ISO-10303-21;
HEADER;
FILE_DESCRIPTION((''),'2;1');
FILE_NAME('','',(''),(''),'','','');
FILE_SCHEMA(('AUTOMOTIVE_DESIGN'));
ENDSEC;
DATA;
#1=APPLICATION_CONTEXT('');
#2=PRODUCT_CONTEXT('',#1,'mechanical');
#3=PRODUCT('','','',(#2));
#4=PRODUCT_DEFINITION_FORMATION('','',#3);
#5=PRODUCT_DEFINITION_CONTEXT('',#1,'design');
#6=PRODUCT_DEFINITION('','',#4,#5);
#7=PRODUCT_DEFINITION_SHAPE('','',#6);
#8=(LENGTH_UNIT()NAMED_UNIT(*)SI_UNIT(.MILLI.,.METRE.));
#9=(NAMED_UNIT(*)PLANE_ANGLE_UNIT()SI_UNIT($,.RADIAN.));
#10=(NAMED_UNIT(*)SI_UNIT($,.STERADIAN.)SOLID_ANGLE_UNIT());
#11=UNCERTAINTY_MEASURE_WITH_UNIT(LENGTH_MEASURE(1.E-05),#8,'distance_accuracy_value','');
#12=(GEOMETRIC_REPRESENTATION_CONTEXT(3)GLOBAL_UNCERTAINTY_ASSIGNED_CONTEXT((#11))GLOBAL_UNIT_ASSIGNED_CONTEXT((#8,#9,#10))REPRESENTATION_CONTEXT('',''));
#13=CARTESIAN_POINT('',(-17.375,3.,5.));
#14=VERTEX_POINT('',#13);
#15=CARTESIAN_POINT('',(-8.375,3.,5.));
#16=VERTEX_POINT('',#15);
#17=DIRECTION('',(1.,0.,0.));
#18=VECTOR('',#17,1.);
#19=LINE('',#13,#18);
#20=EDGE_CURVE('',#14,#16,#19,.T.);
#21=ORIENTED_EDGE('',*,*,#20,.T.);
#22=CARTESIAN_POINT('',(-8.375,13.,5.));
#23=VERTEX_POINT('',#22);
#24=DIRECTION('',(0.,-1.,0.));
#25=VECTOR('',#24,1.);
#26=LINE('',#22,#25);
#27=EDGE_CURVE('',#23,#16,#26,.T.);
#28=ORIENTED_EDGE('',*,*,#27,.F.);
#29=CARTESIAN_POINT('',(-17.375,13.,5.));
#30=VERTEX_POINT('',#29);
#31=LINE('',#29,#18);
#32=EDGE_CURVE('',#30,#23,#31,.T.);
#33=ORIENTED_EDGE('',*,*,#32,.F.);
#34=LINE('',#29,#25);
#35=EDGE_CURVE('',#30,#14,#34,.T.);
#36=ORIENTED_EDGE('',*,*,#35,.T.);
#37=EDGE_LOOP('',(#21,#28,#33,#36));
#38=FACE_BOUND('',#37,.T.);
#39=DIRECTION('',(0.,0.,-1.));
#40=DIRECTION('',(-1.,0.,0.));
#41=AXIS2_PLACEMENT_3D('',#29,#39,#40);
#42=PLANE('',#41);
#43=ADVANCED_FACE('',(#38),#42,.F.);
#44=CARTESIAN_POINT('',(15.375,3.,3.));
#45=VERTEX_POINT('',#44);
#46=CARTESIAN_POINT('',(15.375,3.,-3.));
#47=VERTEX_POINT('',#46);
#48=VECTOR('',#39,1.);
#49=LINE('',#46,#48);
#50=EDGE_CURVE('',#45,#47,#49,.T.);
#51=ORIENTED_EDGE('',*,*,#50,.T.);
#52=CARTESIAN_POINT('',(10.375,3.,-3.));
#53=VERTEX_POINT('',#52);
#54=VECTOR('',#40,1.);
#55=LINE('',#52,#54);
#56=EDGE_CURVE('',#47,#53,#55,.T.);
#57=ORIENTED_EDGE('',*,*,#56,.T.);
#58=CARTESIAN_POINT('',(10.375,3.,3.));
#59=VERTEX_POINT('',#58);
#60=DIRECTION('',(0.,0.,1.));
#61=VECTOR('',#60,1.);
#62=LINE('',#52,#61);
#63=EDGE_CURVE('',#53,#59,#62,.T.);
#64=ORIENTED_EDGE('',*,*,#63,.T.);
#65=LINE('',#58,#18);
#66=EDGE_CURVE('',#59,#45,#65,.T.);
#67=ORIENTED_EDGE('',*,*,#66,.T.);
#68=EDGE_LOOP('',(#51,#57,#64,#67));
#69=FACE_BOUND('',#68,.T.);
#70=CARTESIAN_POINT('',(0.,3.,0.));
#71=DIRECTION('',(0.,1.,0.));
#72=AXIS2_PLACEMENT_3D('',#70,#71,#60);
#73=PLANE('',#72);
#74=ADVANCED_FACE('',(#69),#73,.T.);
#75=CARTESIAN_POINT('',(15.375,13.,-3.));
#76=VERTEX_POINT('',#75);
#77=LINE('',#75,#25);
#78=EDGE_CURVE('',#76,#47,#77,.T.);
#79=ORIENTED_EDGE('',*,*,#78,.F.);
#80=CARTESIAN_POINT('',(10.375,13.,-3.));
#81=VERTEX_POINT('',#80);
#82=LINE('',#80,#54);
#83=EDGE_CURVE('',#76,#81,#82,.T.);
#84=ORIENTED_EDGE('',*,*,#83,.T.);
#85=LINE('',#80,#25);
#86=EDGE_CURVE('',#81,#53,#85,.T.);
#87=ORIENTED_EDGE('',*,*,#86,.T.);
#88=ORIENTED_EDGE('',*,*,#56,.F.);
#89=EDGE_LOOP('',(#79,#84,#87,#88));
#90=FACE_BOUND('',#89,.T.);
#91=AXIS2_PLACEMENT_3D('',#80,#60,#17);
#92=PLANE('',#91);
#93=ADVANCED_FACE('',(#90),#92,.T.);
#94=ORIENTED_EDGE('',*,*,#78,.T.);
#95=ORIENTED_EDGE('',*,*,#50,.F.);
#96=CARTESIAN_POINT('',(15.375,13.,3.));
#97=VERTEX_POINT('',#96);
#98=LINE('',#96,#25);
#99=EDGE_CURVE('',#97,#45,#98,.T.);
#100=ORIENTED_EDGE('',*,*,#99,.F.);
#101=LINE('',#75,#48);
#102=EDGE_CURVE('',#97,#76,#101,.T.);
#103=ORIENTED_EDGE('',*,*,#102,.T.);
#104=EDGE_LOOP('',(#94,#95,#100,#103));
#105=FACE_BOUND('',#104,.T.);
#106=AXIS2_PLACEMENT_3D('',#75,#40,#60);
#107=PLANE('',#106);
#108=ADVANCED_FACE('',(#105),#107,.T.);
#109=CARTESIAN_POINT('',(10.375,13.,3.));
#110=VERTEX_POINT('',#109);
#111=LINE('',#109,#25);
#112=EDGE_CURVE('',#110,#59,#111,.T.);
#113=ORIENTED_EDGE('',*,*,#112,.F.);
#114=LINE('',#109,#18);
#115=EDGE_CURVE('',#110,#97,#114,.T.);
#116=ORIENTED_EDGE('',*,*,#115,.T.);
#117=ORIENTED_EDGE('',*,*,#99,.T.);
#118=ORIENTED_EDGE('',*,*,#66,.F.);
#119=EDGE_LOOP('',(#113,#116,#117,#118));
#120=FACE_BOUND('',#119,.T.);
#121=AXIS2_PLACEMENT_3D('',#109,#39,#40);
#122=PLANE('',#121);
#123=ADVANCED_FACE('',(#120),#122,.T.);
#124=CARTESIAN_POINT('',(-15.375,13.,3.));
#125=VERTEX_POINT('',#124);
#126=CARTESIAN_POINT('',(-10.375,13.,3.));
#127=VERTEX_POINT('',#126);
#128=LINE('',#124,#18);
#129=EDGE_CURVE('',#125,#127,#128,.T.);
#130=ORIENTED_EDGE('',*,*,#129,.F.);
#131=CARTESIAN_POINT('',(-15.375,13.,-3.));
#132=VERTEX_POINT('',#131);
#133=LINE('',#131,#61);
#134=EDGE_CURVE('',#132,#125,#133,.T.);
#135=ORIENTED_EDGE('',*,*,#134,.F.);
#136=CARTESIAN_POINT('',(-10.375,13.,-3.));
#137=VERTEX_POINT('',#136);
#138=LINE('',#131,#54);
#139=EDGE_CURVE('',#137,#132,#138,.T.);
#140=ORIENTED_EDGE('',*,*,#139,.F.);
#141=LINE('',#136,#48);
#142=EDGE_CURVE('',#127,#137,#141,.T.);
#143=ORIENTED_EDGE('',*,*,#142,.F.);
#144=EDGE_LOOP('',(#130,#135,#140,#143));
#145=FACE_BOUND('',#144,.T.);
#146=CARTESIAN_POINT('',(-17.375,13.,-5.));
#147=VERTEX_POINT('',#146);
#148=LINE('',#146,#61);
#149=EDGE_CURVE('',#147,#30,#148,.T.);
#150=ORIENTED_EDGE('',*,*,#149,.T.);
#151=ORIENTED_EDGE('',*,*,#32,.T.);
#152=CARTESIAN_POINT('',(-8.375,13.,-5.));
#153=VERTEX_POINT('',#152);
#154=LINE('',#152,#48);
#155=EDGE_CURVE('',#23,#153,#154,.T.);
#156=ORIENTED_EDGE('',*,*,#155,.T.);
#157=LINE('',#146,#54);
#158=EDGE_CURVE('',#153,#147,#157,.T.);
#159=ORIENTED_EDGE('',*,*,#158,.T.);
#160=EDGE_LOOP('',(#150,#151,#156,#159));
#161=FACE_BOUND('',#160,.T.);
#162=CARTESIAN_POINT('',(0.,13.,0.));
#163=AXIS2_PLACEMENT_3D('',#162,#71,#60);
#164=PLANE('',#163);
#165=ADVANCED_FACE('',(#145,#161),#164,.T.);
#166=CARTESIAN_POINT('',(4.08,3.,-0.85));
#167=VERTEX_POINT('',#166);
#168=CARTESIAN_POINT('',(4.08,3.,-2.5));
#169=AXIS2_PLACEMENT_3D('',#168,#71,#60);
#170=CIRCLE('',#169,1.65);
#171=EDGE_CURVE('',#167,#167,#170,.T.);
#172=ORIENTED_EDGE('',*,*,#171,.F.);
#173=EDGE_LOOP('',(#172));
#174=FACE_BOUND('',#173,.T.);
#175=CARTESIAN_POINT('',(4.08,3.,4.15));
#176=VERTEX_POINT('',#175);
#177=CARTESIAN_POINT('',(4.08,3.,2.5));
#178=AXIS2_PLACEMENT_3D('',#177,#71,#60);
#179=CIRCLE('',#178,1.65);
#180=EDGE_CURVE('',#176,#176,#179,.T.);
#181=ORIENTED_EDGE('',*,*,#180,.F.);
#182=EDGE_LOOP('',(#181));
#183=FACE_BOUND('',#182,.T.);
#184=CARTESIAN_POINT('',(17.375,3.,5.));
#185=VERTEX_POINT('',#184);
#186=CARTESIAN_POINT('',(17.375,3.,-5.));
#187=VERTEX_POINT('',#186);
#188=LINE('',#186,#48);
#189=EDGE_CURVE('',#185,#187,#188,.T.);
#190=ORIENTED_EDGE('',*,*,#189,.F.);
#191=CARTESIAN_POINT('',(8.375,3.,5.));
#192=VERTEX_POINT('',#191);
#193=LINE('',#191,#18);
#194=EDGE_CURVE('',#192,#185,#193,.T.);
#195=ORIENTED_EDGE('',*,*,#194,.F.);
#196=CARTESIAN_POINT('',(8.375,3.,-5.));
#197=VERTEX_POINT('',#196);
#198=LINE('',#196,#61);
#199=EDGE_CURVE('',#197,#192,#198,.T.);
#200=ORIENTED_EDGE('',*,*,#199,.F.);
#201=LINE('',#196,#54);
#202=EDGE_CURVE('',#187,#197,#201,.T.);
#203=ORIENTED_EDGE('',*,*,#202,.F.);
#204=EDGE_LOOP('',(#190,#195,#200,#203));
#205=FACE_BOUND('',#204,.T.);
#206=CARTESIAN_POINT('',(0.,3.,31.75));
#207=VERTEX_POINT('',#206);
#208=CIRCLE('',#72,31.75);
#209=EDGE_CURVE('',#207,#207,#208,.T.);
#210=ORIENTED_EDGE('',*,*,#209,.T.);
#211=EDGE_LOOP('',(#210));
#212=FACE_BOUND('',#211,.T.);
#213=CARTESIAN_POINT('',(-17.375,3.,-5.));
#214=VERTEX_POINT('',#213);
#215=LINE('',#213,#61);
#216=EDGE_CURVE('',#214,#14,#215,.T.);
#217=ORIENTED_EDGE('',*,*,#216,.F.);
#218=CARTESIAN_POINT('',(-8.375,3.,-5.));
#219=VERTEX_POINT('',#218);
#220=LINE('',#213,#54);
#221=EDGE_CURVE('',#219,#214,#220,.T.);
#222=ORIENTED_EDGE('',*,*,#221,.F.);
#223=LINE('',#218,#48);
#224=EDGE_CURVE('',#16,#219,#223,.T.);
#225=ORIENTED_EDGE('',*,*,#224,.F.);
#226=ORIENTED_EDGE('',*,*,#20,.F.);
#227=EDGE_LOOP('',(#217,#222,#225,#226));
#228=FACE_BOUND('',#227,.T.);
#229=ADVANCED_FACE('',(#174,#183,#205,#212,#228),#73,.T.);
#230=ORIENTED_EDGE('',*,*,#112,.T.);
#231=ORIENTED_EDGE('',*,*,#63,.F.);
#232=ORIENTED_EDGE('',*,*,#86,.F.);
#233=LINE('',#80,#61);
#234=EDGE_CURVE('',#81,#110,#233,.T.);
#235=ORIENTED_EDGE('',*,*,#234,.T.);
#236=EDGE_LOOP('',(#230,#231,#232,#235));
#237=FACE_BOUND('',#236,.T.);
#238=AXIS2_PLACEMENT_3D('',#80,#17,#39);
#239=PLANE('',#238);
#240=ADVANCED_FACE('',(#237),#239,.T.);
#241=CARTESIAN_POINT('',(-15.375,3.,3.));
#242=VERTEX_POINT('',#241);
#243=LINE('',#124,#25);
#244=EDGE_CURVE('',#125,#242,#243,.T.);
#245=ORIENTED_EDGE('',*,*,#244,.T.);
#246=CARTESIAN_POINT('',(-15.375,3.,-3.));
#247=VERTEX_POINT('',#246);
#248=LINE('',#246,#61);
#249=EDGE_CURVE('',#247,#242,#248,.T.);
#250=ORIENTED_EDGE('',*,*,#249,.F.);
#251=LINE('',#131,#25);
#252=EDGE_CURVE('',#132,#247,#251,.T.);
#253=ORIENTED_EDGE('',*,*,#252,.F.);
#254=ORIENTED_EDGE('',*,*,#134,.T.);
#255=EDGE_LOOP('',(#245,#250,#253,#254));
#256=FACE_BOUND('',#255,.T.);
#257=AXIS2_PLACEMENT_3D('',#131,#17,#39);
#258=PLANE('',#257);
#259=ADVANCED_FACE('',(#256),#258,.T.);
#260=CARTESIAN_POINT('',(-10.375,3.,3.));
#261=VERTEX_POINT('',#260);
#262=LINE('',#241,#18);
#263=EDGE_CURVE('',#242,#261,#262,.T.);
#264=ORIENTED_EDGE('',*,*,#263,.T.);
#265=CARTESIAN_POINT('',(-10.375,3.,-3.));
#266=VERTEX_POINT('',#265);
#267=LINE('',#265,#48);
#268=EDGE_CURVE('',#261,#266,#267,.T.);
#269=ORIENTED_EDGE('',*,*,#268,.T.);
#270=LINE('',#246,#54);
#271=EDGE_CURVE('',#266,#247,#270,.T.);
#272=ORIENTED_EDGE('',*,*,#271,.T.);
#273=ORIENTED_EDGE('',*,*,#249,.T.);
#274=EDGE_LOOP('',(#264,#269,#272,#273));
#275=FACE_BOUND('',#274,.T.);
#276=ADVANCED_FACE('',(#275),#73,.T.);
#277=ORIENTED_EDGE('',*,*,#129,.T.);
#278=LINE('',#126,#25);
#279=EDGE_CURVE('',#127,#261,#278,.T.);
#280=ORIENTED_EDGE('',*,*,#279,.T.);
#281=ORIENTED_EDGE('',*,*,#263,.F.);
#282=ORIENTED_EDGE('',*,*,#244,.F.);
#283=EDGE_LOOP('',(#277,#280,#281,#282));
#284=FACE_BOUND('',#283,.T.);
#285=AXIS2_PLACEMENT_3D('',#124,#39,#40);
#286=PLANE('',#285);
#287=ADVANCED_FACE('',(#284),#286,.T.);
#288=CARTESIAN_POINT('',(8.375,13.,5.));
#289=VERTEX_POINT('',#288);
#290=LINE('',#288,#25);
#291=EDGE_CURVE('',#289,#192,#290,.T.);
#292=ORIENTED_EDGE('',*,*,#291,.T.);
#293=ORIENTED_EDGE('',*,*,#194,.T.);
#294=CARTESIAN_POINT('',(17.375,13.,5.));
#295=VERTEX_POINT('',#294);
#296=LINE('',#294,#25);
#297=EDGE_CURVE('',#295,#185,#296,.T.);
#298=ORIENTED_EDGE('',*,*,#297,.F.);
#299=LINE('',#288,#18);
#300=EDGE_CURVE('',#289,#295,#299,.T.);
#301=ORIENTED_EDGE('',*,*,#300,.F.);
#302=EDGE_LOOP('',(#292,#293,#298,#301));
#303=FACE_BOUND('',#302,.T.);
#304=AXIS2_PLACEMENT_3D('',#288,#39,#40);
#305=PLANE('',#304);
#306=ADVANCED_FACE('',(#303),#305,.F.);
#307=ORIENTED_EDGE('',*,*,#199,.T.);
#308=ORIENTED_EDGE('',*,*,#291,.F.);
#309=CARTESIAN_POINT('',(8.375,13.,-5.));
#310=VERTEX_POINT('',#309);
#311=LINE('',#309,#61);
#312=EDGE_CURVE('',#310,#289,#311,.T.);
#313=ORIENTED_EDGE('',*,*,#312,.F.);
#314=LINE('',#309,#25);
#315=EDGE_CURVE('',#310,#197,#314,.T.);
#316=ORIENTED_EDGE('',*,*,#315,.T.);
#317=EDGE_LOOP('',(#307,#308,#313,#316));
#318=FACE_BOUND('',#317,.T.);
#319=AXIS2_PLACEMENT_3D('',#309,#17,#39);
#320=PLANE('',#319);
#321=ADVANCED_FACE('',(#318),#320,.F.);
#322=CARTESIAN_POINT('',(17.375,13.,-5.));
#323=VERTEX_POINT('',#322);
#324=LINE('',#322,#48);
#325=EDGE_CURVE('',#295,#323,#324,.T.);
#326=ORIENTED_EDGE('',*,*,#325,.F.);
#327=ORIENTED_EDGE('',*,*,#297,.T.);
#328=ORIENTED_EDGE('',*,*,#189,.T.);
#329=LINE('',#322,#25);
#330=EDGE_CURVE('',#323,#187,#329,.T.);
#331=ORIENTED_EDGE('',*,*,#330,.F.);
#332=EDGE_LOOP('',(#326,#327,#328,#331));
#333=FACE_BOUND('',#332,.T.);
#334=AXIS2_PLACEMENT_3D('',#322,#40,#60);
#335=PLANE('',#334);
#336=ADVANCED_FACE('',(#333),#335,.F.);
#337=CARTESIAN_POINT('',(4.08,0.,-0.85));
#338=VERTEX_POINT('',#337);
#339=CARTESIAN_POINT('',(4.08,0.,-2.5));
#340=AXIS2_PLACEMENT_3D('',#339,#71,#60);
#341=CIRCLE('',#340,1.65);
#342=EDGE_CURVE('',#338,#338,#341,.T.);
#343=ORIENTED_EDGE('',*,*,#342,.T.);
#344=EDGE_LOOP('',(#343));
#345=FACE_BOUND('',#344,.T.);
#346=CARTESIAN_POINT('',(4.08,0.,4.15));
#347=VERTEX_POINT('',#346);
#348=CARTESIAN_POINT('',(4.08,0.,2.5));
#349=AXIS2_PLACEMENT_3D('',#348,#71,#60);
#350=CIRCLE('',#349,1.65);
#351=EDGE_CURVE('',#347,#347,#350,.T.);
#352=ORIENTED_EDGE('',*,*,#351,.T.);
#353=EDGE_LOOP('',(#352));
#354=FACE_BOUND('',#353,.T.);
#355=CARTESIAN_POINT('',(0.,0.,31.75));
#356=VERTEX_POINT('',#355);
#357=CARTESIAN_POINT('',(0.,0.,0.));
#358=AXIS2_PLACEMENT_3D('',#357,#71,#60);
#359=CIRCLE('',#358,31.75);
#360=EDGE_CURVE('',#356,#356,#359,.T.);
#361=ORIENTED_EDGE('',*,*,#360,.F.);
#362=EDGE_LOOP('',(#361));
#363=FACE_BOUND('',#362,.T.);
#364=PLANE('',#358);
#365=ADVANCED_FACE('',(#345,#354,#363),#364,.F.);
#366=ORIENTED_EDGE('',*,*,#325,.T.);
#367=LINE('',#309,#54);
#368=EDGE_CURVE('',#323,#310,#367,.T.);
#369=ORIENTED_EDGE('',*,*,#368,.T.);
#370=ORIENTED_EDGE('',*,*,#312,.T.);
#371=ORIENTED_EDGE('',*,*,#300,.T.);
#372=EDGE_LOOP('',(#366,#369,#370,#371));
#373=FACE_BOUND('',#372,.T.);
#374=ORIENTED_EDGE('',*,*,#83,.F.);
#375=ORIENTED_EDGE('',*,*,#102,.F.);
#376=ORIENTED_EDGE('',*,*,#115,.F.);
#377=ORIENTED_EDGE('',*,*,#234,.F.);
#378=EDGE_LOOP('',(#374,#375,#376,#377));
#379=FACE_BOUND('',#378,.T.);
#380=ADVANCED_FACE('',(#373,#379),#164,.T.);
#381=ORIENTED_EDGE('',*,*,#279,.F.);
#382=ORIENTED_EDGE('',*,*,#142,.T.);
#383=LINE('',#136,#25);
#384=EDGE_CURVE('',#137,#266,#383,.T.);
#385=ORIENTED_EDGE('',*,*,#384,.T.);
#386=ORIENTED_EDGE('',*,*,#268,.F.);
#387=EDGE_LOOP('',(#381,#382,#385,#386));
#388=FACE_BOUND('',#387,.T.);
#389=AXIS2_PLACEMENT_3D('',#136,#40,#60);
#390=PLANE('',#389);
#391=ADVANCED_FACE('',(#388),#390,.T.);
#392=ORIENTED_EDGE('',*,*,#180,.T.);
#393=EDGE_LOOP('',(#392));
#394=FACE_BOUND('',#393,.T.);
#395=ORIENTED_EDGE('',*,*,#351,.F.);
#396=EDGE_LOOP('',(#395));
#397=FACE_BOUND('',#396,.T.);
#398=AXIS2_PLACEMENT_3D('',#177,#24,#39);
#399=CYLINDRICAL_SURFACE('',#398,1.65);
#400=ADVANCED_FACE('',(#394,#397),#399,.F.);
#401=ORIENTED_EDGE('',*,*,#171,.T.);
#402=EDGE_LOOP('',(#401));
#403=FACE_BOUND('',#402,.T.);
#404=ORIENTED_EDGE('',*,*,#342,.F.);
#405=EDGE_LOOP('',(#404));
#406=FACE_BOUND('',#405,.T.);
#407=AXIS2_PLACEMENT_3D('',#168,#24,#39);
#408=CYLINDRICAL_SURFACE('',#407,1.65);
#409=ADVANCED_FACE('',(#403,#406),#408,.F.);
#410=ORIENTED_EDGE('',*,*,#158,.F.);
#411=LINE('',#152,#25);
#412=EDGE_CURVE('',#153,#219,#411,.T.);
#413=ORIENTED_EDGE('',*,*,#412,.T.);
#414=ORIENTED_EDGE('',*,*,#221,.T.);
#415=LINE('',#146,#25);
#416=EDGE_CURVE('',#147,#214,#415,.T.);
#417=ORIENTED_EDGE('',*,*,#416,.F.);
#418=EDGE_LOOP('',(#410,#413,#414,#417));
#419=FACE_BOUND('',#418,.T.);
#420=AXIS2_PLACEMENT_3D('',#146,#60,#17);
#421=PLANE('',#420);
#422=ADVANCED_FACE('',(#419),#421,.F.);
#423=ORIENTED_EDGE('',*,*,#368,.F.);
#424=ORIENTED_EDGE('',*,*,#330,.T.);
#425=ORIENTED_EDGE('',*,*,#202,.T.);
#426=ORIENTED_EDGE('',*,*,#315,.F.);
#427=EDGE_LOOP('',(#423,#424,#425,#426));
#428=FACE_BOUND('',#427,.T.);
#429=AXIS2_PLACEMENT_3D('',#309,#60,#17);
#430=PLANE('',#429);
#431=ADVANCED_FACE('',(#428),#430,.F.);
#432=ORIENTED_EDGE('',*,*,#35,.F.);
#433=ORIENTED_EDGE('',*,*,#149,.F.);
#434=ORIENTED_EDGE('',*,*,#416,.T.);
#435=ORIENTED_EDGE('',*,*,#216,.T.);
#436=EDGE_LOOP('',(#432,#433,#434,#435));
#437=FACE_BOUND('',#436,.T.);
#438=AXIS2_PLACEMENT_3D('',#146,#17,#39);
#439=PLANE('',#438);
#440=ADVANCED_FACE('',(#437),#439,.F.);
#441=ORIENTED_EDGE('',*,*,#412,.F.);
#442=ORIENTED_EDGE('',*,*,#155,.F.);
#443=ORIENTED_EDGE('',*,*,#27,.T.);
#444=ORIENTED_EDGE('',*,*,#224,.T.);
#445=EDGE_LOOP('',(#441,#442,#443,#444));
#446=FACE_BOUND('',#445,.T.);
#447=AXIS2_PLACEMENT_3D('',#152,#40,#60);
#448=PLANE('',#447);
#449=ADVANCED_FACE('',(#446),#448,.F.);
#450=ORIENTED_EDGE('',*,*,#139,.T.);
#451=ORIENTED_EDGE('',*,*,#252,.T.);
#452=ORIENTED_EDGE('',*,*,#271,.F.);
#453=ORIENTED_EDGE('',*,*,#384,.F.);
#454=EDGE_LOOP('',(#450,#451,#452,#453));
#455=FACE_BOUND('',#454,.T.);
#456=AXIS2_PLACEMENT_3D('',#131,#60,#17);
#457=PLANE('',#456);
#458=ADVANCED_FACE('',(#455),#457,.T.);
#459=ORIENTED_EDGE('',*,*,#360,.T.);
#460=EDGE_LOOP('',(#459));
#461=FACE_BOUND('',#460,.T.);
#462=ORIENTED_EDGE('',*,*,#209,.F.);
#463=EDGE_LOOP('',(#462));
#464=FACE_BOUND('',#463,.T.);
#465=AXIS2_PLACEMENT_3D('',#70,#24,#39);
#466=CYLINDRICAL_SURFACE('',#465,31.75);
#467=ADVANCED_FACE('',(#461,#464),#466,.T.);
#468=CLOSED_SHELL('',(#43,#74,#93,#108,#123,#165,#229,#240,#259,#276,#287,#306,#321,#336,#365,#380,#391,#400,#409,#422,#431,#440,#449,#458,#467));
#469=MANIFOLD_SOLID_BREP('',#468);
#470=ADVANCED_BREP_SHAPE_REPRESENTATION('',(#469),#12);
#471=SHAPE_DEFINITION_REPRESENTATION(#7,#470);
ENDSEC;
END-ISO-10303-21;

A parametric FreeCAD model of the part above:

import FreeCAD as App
import Part
import Sketcher

V = App.Vector

doc = App.newDocument("Part")
body = doc.addObject("PartDesign::Body", "Body")

# Sketch on XZ plane
sketch1 = body.newObject("Sketcher::SketchObject", "Sketch")
sketch1.AttachmentSupport = (doc.getObject("XZ_Plane"), [""])
sketch1.MapMode = "FlatFace"
sketch1.addGeometry([
    Part.Circle(V(0, 0, 0), V(0, 0, 1), 31.8),
    Part.Circle(V(4.1, -2.5, 0), V(0, 0, 1), 1.6),
    Part.Circle(V(4.1, 2.5, 0), V(0, 0, 1), 1.6),
], False)
sketch1.addConstraint([
    Sketcher.Constraint("Coincident", 0, 3, -1, 1),
    Sketcher.Constraint("Equal", 1, 2),
    Sketcher.Constraint("Symmetric", 1, 3, 2, 3, -1),
    Sketcher.Constraint("Diameter", 0, 63.5),
    Sketcher.Constraint("Diameter", 1, 3.3),
    Sketcher.Constraint("DistanceY", 1, 3, 2, 3, 5.0),
    Sketcher.Constraint("DistanceX", -1, 1, 1, 3, 4.08),
])
pad1 = body.newObject("PartDesign::Pad", "Pad")
pad1.Profile = sketch1
pad1.Length = 3
pad1.Reversed = True

# Sketch on XZ plane
sketch2 = body.newObject("Sketcher::SketchObject", "Sketch001")
sketch2.AttachmentSupport = (doc.getObject("XZ_Plane"), [""])
sketch2.MapMode = "FlatFace"
sketch2.AttachmentOffset = App.Placement(V(0, 0, -3), App.Rotation())
sketch2.addGeometry([
    Part.LineSegment(V(8, -5, 0), V(8, 5, 0)),  # 0
    Part.LineSegment(V(8, 5, 0), V(17, 5, 0)),  # 1
    Part.LineSegment(V(17, 5, 0), V(17, -5, 0)),  # 2
    Part.LineSegment(V(17, -5, 0), V(8, -5, 0)),  # 3
    Part.LineSegment(V(15, 3, 0), V(10, 3, 0)),  # 4
    Part.LineSegment(V(10, 3, 0), V(10, -3, 0)),  # 5
    Part.LineSegment(V(10, -3, 0), V(15, -3, 0)),  # 6
    Part.LineSegment(V(15, -3, 0), V(15, 3, 0)),  # 7
    Part.LineSegment(V(-17, -5, 0), V(-17, 5, 0)),  # 8
    Part.LineSegment(V(-17, 5, 0), V(-8, 5, 0)),  # 9
    Part.LineSegment(V(-8, 5, 0), V(-8, -5, 0)),  # 10
    Part.LineSegment(V(-8, -5, 0), V(-17, -5, 0)),  # 11
    Part.LineSegment(V(-10, 3, 0), V(-15, 3, 0)),  # 12
    Part.LineSegment(V(-15, 3, 0), V(-15, -3, 0)),  # 13
    Part.LineSegment(V(-15, -3, 0), V(-10, -3, 0)),  # 14
    Part.LineSegment(V(-10, -3, 0), V(-10, 3, 0)),  # 15
], False)
sketch2.addConstraint([
    Sketcher.Constraint("Coincident", 0, 2, 1, 1),
    Sketcher.Constraint("Coincident", 1, 2, 2, 1),
    Sketcher.Constraint("Coincident", 2, 2, 3, 1),
    Sketcher.Constraint("Coincident", 3, 2, 0, 1),
    Sketcher.Constraint("Coincident", 4, 2, 5, 1),
    Sketcher.Constraint("Coincident", 5, 2, 6, 1),
    Sketcher.Constraint("Coincident", 6, 2, 7, 1),
    Sketcher.Constraint("Coincident", 7, 2, 4, 1),
    Sketcher.Constraint("Coincident", 8, 2, 9, 1),
    Sketcher.Constraint("Coincident", 9, 2, 10, 1),
    Sketcher.Constraint("Coincident", 10, 2, 11, 1),
    Sketcher.Constraint("Coincident", 11, 2, 8, 1),
    Sketcher.Constraint("Coincident", 12, 2, 13, 1),
    Sketcher.Constraint("Coincident", 13, 2, 14, 1),
    Sketcher.Constraint("Coincident", 14, 2, 15, 1),
    Sketcher.Constraint("Coincident", 15, 2, 12, 1),
    Sketcher.Constraint("Vertical", 0),
    Sketcher.Constraint("Horizontal", 1),
    Sketcher.Constraint("Vertical", 2),
    Sketcher.Constraint("Horizontal", 3),
    Sketcher.Constraint("Horizontal", 4),
    Sketcher.Constraint("Vertical", 5),
    Sketcher.Constraint("Horizontal", 6),
    Sketcher.Constraint("Vertical", 7),
    Sketcher.Constraint("Vertical", 8),
    Sketcher.Constraint("Horizontal", 9),
    Sketcher.Constraint("Vertical", 10),
    Sketcher.Constraint("Horizontal", 11),
    Sketcher.Constraint("Horizontal", 12),
    Sketcher.Constraint("Vertical", 13),
    Sketcher.Constraint("Horizontal", 14),
    Sketcher.Constraint("Vertical", 15),
    Sketcher.Constraint("Symmetric", 2, 2, 8, 2, -1, 1),
    Sketcher.Constraint("Symmetric", 0, 2, 10, 2, -1, 1),
    Sketcher.Constraint("Symmetric", 6, 2, 12, 2, -1, 1),
    Sketcher.Constraint("Symmetric", 4, 2, 14, 2, -1, 1),
    Sketcher.Constraint("Horizontal", 1, 2, 8, 2),
    Sketcher.Constraint("Horizontal", 7, 2, 12, 2),
    Sketcher.Constraint("DistanceX", 1, 1, 1, 2, 9.0),
    Sketcher.Constraint("DistanceX", 4, 2, 4, 1, 5.0),
    Sketcher.Constraint("DistanceY", 0, 1, 0, 2, 10.0),
    Sketcher.Constraint("DistanceY", 5, 2, 5, 1, 6.0),
    Sketcher.Constraint("DistanceX", 0, 2, 4, 2, 2.0),
    Sketcher.Constraint("DistanceX", 8, 2, 0, 2, 25.75),
])
pad2 = body.newObject("PartDesign::Pad", "Pad001")
pad2.Profile = sketch2
pad2.Length = 10
pad2.Reversed = True

doc.recompute()
